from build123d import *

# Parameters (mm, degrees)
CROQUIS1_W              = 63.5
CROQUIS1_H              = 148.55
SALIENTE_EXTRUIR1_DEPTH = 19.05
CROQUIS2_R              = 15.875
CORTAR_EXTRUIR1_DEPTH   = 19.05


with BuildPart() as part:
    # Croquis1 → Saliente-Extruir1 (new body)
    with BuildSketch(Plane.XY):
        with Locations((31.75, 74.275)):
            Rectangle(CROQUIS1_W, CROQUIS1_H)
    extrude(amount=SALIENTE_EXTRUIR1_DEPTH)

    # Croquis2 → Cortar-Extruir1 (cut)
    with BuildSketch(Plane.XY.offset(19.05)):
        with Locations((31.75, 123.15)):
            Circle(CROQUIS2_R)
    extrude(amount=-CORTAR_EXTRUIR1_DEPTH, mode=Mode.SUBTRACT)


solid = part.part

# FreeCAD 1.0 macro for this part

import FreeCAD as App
import Part
import Sketcher
Q = App.Units.Quantity

doc = App.newDocument("Part")
params = doc.addObject("Spreadsheet::Sheet", "Params")
for row, (alias, value) in enumerate([
    ("sketch1_width", "2.5 in"),
    ("pad1_length", "0.75 in"),
    ("sketch2_diameter", "1.25 in"),
    ("pocket1_length", "0.75 in"),
], start=1):
    params.set(f"A{row}", alias)
    params.set(f"B{row}", "=" + value)
    params.setAlias(f"B{row}", alias)

body = doc.addObject("PartDesign::Body", "Body")

# Sketch on XY plane
sketch1 = body.newObject("Sketcher::SketchObject", "Sketch")
sketch1.AttachmentSupport = (doc.getObject("XY_Plane"), [""])
sketch1.MapMode = "FlatFace"
sketch1.addGeometry([
    Part.LineSegment(App.Vector(0, 149, 0), App.Vector(0, 0, 0)),
    Part.LineSegment(App.Vector(0, 0, 0), App.Vector(64, 0, 0)),
    Part.LineSegment(App.Vector(64, 0, 0), App.Vector(64, 149, 0)),
    Part.LineSegment(App.Vector(64, 149, 0), App.Vector(0, 149, 0)),
], False)
sketch1.addConstraint([
    Sketcher.Constraint("Coincident", 0, 2, 1, 1),
    Sketcher.Constraint("Coincident", 1, 2, 2, 1),
    Sketcher.Constraint("Coincident", 2, 2, 3, 1),
    Sketcher.Constraint("Coincident", 3, 2, 0, 1),
    Sketcher.Constraint("Vertical", 0),
    Sketcher.Constraint("Horizontal", 1),
    Sketcher.Constraint("Vertical", 2),
    Sketcher.Constraint("Horizontal", 3),
    Sketcher.Constraint("Coincident", 0, 2, -1, 1),
    Sketcher.Constraint("DistanceX", 1, 1, 1, 2, Q("2.5 in")),
    Sketcher.Constraint("DistanceY", 0, 2, 0, 1, Q("148.55 mm")),
])
sketch1.setExpression("Constraints[9]", "Params.sketch1_width")
pad1 = body.newObject("PartDesign::Pad", "Pad")
pad1.Profile = sketch1
pad1.setExpression("Length", "Params.pad1_length")

# Sketch on XY plane
sketch2 = body.newObject("Sketcher::SketchObject", "Sketch001")
sketch2.AttachmentSupport = (doc.getObject("XY_Plane"), [""])
sketch2.MapMode = "FlatFace"
sketch2.AttachmentOffset = App.Placement(App.Vector(0, 0, 0.75 * 25.4), App.Rotation())
sketch2.addGeometry(Part.Circle(App.Vector(32, 123, 0), App.Vector(0, 0, 1), 16), False)
sketch2.addConstraint([
    Sketcher.Constraint("Diameter", 0, Q("1.25 in")),
    Sketcher.Constraint("DistanceX", -1, 1, 0, 3, Q("1.25 in")),
    Sketcher.Constraint("DistanceY", -1, 1, 0, 3, Q("123.15 mm")),
])
sketch2.setExpression("Constraints[0]", "Params.sketch2_diameter")
pocket1 = body.newObject("PartDesign::Pocket", "Pocket")
pocket1.Profile = sketch2
pocket1.setExpression("Length", "Params.pocket1_length")

doc.recompute()
